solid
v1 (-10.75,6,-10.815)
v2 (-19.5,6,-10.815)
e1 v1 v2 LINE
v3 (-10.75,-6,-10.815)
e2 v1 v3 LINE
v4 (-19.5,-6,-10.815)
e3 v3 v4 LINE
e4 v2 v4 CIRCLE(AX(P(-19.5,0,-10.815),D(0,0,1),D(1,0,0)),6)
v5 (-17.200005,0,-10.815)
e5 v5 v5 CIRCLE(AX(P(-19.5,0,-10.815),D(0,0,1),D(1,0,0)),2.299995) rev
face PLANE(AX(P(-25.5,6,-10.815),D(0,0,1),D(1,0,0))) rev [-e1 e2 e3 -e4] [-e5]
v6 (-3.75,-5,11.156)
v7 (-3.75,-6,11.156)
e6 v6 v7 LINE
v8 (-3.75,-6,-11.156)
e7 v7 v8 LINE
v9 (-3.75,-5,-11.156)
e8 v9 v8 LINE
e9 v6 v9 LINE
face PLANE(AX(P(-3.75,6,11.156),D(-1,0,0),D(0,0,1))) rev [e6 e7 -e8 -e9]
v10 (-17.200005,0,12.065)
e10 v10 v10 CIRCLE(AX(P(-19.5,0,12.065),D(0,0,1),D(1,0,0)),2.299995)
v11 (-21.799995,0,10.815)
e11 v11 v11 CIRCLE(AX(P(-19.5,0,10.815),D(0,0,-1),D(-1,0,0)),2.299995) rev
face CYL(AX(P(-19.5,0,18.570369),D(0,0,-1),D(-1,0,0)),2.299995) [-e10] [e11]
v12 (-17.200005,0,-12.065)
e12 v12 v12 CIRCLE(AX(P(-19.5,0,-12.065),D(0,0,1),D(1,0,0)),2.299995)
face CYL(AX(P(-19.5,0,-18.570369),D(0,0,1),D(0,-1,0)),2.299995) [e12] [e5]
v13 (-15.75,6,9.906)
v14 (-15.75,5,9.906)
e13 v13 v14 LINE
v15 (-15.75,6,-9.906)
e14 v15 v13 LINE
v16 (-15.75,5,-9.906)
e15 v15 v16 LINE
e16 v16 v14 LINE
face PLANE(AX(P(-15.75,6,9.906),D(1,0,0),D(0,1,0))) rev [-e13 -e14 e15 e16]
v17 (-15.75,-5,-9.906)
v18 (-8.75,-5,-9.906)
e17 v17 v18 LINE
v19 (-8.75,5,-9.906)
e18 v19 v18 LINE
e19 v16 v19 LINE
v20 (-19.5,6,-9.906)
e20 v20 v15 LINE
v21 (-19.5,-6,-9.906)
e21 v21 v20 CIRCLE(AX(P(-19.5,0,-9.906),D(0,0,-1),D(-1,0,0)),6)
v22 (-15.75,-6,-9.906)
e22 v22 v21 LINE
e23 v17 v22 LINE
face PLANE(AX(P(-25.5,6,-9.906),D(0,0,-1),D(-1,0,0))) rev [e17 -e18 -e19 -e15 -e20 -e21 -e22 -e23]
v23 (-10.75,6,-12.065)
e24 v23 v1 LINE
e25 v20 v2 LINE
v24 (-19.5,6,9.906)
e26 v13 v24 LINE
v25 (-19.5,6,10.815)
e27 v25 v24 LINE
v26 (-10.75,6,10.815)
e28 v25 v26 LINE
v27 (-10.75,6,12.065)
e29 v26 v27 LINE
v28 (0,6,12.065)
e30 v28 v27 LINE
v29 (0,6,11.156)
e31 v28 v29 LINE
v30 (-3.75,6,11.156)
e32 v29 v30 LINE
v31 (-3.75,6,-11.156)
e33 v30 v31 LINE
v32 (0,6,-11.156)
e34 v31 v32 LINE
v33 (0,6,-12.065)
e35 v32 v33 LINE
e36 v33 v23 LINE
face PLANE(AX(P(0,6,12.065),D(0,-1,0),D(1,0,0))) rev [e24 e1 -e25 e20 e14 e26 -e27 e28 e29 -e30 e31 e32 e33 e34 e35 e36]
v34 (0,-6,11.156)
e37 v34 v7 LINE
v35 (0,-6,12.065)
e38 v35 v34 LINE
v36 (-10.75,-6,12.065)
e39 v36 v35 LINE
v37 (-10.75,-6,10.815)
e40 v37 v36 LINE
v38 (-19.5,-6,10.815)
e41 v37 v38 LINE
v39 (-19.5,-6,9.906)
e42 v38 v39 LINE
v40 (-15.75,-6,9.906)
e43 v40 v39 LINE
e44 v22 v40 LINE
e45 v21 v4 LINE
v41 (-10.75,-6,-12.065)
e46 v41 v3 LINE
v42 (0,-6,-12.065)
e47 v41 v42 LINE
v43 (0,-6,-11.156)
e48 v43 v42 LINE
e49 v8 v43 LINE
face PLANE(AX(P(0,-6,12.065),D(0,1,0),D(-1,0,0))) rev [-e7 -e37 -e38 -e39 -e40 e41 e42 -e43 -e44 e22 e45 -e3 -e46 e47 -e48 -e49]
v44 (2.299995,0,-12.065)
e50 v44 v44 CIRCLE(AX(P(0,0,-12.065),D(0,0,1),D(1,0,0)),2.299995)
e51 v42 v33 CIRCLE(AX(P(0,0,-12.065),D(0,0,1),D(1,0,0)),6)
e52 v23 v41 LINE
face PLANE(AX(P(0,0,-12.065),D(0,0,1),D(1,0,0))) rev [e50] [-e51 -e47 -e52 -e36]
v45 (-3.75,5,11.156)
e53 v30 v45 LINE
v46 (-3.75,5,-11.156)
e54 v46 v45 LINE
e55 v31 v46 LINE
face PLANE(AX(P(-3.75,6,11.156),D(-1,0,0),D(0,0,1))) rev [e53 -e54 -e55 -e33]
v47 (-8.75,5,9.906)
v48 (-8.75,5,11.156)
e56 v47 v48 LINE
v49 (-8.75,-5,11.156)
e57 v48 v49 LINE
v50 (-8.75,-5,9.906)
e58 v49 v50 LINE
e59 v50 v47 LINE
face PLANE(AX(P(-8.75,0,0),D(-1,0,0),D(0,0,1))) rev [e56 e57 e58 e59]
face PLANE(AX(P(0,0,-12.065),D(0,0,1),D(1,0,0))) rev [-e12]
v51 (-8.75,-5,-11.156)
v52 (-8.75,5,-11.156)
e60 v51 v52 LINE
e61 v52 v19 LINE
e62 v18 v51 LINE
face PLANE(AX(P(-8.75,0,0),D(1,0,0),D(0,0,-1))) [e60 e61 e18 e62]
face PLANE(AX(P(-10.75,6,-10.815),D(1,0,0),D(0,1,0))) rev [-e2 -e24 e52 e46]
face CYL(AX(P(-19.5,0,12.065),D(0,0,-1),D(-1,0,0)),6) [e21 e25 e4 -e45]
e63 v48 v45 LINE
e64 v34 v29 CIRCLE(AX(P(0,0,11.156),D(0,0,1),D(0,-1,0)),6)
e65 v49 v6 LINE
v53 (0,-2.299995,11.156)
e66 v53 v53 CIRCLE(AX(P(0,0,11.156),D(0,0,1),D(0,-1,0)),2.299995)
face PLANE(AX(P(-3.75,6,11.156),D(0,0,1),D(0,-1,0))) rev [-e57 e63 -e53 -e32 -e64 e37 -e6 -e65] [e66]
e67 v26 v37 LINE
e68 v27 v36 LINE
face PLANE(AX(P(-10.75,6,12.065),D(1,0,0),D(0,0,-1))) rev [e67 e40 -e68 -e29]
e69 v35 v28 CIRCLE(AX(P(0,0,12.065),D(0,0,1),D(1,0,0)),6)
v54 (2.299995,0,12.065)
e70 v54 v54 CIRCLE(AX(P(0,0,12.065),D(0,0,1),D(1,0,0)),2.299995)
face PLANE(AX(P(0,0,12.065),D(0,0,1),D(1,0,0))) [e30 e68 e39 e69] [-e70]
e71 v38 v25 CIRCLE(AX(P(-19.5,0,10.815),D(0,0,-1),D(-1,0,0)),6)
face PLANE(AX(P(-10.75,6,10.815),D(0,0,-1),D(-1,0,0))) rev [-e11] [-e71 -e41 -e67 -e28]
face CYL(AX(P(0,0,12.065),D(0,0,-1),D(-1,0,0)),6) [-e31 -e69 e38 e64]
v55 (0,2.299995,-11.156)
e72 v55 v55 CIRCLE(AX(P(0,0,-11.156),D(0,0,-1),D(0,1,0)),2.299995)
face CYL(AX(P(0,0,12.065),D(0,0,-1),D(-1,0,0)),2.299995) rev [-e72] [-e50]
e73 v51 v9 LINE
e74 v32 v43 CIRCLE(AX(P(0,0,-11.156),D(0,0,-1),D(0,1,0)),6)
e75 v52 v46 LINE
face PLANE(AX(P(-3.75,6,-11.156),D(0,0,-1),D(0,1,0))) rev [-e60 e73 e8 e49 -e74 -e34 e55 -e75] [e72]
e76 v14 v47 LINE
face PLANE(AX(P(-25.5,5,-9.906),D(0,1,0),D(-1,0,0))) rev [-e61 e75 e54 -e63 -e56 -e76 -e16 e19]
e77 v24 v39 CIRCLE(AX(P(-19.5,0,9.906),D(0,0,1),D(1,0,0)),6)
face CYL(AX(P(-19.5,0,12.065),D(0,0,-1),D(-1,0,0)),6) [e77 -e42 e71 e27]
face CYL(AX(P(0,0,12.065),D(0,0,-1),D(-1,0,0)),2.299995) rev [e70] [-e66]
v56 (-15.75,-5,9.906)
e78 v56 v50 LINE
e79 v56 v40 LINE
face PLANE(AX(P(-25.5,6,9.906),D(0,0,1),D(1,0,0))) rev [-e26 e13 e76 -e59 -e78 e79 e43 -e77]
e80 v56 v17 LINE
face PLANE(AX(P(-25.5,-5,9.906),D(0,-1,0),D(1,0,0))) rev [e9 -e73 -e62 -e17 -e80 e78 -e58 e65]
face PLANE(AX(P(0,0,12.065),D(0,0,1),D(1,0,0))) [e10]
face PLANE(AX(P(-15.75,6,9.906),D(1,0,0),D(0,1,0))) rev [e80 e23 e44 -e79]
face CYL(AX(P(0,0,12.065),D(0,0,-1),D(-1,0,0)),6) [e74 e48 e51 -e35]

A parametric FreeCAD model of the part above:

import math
import FreeCAD as App
import Part
import Sketcher
from FreeCAD import Vector


def add_polygon(sketch, points):
    """Adds a closed chain of lines whose ends are joined by coincident constraints."""
    first, n = sketch.GeometryCount, len(points)
    for a, b in zip(points, points[1:] + points[:1]):
        sketch.addGeometry(Part.LineSegment(App.Vector(*a, 0), App.Vector(*b, 0)), False)
    for i in range(n):
        sketch.addConstraint(Sketcher.Constraint("Coincident", first + i, 2, first + (i + 1) % n, 1))

doc = App.newDocument("Part")
body = doc.addObject("PartDesign::Body", "Body")

# Sketch on XY plane
sketch1 = body.newObject("Sketcher::SketchObject", "Sketch")
sketch1.AttachmentSupport = (doc.getObject("XY_Plane"), [""])
sketch1.MapMode = "FlatFace"
sketch1.addGeometry(Part.LineSegment(Vector(-19.5, -6, 0), Vector(0, -6, 0)), False)
sketch1.addGeometry(Part.ArcOfCircle(Part.Circle(Vector(0, 0, 0), Vector(0, 0, 1), 6), math.radians(-90), math.radians(90)), False)
sketch1.addGeometry(Part.LineSegment(Vector(0, 6, 0), Vector(-19.5, 6, 0)), False)
sketch1.addGeometry(Part.ArcOfCircle(Part.Circle(Vector(-19.5, 0, 0), Vector(0, 0, 1), 6), math.radians(90), math.radians(270)), False)
sketch1.addGeometry(Part.Circle(Vector(0, 0, 0), Vector(0, 0, 1), 2.3), False)
sketch1.addConstraint(Sketcher.Constraint("Tangent", 0, 2, 1, 1))
sketch1.addConstraint(Sketcher.Constraint("Tangent", 1, 2, 2, 1))
sketch1.addConstraint(Sketcher.Constraint("Tangent", 2, 2, 3, 1))
sketch1.addConstraint(Sketcher.Constraint("Tangent", 3, 2, 0, 1))
sketch1.addConstraint(Sketcher.Constraint("Horizontal", 0))
sketch1.addConstraint(Sketcher.Constraint("Horizontal", 2))
sketch1.addConstraint(Sketcher.Constraint("Coincident", 1, 3, -1, 1))
sketch1.addConstraint(Sketcher.Constraint("Coincident", 4, 3, -1, 1))
sketch1.addConstraint(Sketcher.Constraint("Radius", 1, 6.0))
sketch1.addConstraint(Sketcher.Constraint("DistanceX", 0, 1, 0, 2, 19.5))
sketch1.addConstraint(Sketcher.Constraint("Diameter", 4, 4.599991))
pad1 = body.newObject("PartDesign::Pad", "Pad")
pad1.Profile = sketch1
pad1.Length = 24.13
pad1.Midplane = True

# Sketch on XZ plane
sketch2 = body.newObject("Sketcher::SketchObject", "Sketch001")
sketch2.AttachmentSupport = (doc.getObject("XZ_Plane"), [""])
sketch2.MapMode = "FlatFace"
sketch2.AttachmentOffset = App.Placement(Vector(0, 0, 6), App.Rotation())
add_polygon(sketch2, [(-3.8, 11.2), (-3.8, -11.2), (6, -11.2), (6, 11.2)])  # lines 0-3
add_polygon(sketch2, [(-25.5, 12.1), (-25.5, 10.8), (-10.8, 10.8), (-10.8, 12.1)])  # lines 4-7
add_polygon(sketch2, [(-25.5, -10.8), (-25.5, -12.1), (-10.8, -12.1), (-10.8, -10.8)])  # lines 8-11
add_polygon(sketch2, [(-25.5, 9.9), (-25.5, -9.9), (-15.8, -9.9), (-15.8, 9.9)])  # lines 12-15
sketch2.addConstraint(Sketcher.Constraint("Vertical", 0))
sketch2.addConstraint(Sketcher.Constraint("Horizontal", 1))
sketch2.addConstraint(Sketcher.Constraint("Vertical", 2))
sketch2.addConstraint(Sketcher.Constraint("Horizontal", 3))
sketch2.addConstraint(Sketcher.Constraint("Vertical", 4))
sketch2.addConstraint(Sketcher.Constraint("Horizontal", 5))
sketch2.addConstraint(Sketcher.Constraint("Vertical", 6))
sketch2.addConstraint(Sketcher.Constraint("Horizontal", 7))
sketch2.addConstraint(Sketcher.Constraint("Vertical", 8))
sketch2.addConstraint(Sketcher.Constraint("Horizontal", 9))
sketch2.addConstraint(Sketcher.Constraint("Vertical", 10))
sketch2.addConstraint(Sketcher.Constraint("Horizontal", 11))
sketch2.addConstraint(Sketcher.Constraint("Vertical", 12))
sketch2.addConstraint(Sketcher.Constraint("Horizontal", 13))
sketch2.addConstraint(Sketcher.Constraint("Vertical", 14))
sketch2.addConstraint(Sketcher.Constraint("Horizontal", 15))
sketch2.addConstraint(Sketcher.Constraint("Symmetric", 7, 2, 8, 2, -1))
sketch2.addConstraint(Sketcher.Constraint("Symmetric", 5, 2, 10, 2, -1))
sketch2.addConstraint(Sketcher.Constraint("Vertical", 11, 2, 12, 2))
sketch2.addConstraint(Sketcher.Constraint("Equal", 3, 13))
sketch2.addConstraint(Sketcher.Constraint("DistanceX", -1, 1, 1, 2, 6.0))
sketch2.addConstraint(Sketcher.Constraint("DistanceX", 5, 2, 3, 2, 7.0))
sketch2.addConstraint(Sketcher.Constraint("DistanceX", 13, 2, 10, 2, 5.0))
sketch2.addConstraint(Sketcher.Constraint("DistanceX", 1, 1, 1, 2, 9.75))
sketch2.addConstraint(Sketcher.Constraint("DistanceY", 4, 2, 4, 1, 1.25))
sketch2.addConstraint(Sketcher.Constraint("DistanceY", 0, 2, 0, 1, 22.312))
sketch2.addConstraint(Sketcher.Constraint("DistanceY", 12, 2, 12, 1, 19.812))
sketch2.addConstraint(Sketcher.Constraint("DistanceY", 8, 2, 4, 2, 22.88))
sketch2.addConstraint(Sketcher.Constraint("DistanceY", 14, 2, 3, 2, 1.25))
sketch2.addConstraint(Sketcher.Constraint("DistanceY", 0, 2, -1, 1, 11.156))
pocket1 = body.newObject("PartDesign::Pocket", "Pocket")
pocket1.Profile = sketch2
pocket1.Type = "ThroughAll"

# Sketch on XY plane
sketch3 = body.newObject("Sketcher::SketchObject", "Sketch002")
sketch3.AttachmentSupport = (doc.getObject("XY_Plane"), [""])
sketch3.MapMode = "FlatFace"
sketch3.AttachmentOffset = App.Placement(Vector(0, 0, 10.815), App.Rotation())
sketch3.addGeometry(Part.Circle(Vector(-19.5, 0, 0), Vector(0, 0, 1), 2.3), False)
sketch3.addConstraint(Sketcher.Constraint("PointOnObject", 0, 3, -1))
sketch3.addConstraint(Sketcher.Constraint("DistanceX", 0, 3, -1, 1, 19.5))
sketch3.addConstraint(Sketcher.Constraint("Diameter", 0, 4.599991))
pad2 = body.newObject("PartDesign::Pad", "Pad001")
pad2.Profile = sketch3
pad2.Length = 1.25

# Sketch on XY plane
sketch4 = body.newObject("Sketcher::SketchObject", "Sketch003")
sketch4.AttachmentSupport = (doc.getObject("XY_Plane"), [""])
sketch4.MapMode = "FlatFace"
sketch4.AttachmentOffset = App.Placement(Vector(0, 0, -10.815), App.Rotation())
sketch4.addGeometry(Part.Circle(Vector(-19.5, 0, 0), Vector(0, 0, 1), 2.3), False)
sketch4.addConstraint(Sketcher.Constraint("PointOnObject", 0, 3, -1))
sketch4.addConstraint(Sketcher.Constraint("DistanceX", 0, 3, -1, 1, 19.5))
sketch4.addConstraint(Sketcher.Constraint("Diameter", 0, 4.599991))
pad3 = body.newObject("PartDesign::Pad", "Pad002")
pad3.Profile = sketch4
pad3.Length = 1.25
pad3.Reversed = True

# Sketch on YZ plane
sketch5 = body.newObject("Sketcher::SketchObject", "Sketch004")
sketch5.AttachmentSupport = (doc.getObject("YZ_Plane"), [""])
sketch5.MapMode = "FlatFace"
sketch5.AttachmentOffset = App.Placement(Vector(0, 0, -3.75), App.Rotation())
add_polygon(sketch5, [(5, 10), (-5, 10), (-5, -10), (5, -10)])  # lines 0-3
sketch5.addConstraint(Sketcher.Constraint("Horizontal", 0))
sketch5.addConstraint(Sketcher.Constraint("Vertical", 1))
sketch5.addConstraint(Sketcher.Constraint("Horizontal", 2))
sketch5.addConstraint(Sketcher.Constraint("Vertical", 3))
sketch5.addConstraint(Sketcher.Constraint("Symmetric", 0, 2, 2, 2, -1, 1))
sketch5.addConstraint(Sketcher.Constraint("DistanceX", 0, 2, 0, 1, 10.0))
sketch5.addConstraint(Sketcher.Constraint("DistanceY", 1, 2, 1, 1, 19.812))
pocket2 = body.newObject("PartDesign::Pocket", "Pocket001")
pocket2.Profile = sketch5
pocket2.Type = "ThroughAll"

# Sketch on YZ plane
sketch6 = body.newObject("Sketcher::SketchObject", "Sketch005")
sketch6.AttachmentSupport = (doc.getObject("YZ_Plane"), [""])
sketch6.MapMode = "FlatFace"
sketch6.AttachmentOffset = App.Placement(Vector(0, 0, -3.75), App.Rotation())
add_polygon(sketch6, [(5, 11.2), (-5, 11.2), (-5, 9.9), (5, 9.9)])  # lines 0-3
add_polygon(sketch6, [(5, -9.9), (-5, -9.9), (-5, -11.2), (5, -11.2)])  # lines 4-7
sketch6.addConstraint(Sketcher.Constraint("Horizontal", 0))
sketch6.addConstraint(Sketcher.Constraint("Vertical", 1))
sketch6.addConstraint(Sketcher.Constraint("Horizontal", 2))
sketch6.addConstraint(Sketcher.Constraint("Vertical", 3))
sketch6.addConstraint(Sketcher.Constraint("Horizontal", 4))
sketch6.addConstraint(Sketcher.Constraint("Vertical", 5))
sketch6.addConstraint(Sketcher.Constraint("Horizontal", 6))
sketch6.addConstraint(Sketcher.Constraint("Vertical", 7))
sketch6.addConstraint(Sketcher.Constraint("Symmetric", 2, 2, 4, 2, -1, 1))
sketch6.addConstraint(Sketcher.Constraint("Symmetric", 0, 2, 6, 2, -1, 1))
sketch6.addConstraint(Sketcher.Constraint("Vertical", 1, 2, 4, 2))
sketch6.addConstraint(Sketcher.Constraint("DistanceX", 0, 2, 0, 1, 10.0))
sketch6.addConstraint(Sketcher.Constraint("DistanceY", 1, 2, 1, 1, 1.25))
sketch6.addConstraint(Sketcher.Constraint("DistanceY", -1, 1, 0, 2, 11.156))
pocket3 = body.newObject("PartDesign::Pocket", "Pocket002")
pocket3.Profile = sketch6
pocket3.Length = 5

doc.recompute()
